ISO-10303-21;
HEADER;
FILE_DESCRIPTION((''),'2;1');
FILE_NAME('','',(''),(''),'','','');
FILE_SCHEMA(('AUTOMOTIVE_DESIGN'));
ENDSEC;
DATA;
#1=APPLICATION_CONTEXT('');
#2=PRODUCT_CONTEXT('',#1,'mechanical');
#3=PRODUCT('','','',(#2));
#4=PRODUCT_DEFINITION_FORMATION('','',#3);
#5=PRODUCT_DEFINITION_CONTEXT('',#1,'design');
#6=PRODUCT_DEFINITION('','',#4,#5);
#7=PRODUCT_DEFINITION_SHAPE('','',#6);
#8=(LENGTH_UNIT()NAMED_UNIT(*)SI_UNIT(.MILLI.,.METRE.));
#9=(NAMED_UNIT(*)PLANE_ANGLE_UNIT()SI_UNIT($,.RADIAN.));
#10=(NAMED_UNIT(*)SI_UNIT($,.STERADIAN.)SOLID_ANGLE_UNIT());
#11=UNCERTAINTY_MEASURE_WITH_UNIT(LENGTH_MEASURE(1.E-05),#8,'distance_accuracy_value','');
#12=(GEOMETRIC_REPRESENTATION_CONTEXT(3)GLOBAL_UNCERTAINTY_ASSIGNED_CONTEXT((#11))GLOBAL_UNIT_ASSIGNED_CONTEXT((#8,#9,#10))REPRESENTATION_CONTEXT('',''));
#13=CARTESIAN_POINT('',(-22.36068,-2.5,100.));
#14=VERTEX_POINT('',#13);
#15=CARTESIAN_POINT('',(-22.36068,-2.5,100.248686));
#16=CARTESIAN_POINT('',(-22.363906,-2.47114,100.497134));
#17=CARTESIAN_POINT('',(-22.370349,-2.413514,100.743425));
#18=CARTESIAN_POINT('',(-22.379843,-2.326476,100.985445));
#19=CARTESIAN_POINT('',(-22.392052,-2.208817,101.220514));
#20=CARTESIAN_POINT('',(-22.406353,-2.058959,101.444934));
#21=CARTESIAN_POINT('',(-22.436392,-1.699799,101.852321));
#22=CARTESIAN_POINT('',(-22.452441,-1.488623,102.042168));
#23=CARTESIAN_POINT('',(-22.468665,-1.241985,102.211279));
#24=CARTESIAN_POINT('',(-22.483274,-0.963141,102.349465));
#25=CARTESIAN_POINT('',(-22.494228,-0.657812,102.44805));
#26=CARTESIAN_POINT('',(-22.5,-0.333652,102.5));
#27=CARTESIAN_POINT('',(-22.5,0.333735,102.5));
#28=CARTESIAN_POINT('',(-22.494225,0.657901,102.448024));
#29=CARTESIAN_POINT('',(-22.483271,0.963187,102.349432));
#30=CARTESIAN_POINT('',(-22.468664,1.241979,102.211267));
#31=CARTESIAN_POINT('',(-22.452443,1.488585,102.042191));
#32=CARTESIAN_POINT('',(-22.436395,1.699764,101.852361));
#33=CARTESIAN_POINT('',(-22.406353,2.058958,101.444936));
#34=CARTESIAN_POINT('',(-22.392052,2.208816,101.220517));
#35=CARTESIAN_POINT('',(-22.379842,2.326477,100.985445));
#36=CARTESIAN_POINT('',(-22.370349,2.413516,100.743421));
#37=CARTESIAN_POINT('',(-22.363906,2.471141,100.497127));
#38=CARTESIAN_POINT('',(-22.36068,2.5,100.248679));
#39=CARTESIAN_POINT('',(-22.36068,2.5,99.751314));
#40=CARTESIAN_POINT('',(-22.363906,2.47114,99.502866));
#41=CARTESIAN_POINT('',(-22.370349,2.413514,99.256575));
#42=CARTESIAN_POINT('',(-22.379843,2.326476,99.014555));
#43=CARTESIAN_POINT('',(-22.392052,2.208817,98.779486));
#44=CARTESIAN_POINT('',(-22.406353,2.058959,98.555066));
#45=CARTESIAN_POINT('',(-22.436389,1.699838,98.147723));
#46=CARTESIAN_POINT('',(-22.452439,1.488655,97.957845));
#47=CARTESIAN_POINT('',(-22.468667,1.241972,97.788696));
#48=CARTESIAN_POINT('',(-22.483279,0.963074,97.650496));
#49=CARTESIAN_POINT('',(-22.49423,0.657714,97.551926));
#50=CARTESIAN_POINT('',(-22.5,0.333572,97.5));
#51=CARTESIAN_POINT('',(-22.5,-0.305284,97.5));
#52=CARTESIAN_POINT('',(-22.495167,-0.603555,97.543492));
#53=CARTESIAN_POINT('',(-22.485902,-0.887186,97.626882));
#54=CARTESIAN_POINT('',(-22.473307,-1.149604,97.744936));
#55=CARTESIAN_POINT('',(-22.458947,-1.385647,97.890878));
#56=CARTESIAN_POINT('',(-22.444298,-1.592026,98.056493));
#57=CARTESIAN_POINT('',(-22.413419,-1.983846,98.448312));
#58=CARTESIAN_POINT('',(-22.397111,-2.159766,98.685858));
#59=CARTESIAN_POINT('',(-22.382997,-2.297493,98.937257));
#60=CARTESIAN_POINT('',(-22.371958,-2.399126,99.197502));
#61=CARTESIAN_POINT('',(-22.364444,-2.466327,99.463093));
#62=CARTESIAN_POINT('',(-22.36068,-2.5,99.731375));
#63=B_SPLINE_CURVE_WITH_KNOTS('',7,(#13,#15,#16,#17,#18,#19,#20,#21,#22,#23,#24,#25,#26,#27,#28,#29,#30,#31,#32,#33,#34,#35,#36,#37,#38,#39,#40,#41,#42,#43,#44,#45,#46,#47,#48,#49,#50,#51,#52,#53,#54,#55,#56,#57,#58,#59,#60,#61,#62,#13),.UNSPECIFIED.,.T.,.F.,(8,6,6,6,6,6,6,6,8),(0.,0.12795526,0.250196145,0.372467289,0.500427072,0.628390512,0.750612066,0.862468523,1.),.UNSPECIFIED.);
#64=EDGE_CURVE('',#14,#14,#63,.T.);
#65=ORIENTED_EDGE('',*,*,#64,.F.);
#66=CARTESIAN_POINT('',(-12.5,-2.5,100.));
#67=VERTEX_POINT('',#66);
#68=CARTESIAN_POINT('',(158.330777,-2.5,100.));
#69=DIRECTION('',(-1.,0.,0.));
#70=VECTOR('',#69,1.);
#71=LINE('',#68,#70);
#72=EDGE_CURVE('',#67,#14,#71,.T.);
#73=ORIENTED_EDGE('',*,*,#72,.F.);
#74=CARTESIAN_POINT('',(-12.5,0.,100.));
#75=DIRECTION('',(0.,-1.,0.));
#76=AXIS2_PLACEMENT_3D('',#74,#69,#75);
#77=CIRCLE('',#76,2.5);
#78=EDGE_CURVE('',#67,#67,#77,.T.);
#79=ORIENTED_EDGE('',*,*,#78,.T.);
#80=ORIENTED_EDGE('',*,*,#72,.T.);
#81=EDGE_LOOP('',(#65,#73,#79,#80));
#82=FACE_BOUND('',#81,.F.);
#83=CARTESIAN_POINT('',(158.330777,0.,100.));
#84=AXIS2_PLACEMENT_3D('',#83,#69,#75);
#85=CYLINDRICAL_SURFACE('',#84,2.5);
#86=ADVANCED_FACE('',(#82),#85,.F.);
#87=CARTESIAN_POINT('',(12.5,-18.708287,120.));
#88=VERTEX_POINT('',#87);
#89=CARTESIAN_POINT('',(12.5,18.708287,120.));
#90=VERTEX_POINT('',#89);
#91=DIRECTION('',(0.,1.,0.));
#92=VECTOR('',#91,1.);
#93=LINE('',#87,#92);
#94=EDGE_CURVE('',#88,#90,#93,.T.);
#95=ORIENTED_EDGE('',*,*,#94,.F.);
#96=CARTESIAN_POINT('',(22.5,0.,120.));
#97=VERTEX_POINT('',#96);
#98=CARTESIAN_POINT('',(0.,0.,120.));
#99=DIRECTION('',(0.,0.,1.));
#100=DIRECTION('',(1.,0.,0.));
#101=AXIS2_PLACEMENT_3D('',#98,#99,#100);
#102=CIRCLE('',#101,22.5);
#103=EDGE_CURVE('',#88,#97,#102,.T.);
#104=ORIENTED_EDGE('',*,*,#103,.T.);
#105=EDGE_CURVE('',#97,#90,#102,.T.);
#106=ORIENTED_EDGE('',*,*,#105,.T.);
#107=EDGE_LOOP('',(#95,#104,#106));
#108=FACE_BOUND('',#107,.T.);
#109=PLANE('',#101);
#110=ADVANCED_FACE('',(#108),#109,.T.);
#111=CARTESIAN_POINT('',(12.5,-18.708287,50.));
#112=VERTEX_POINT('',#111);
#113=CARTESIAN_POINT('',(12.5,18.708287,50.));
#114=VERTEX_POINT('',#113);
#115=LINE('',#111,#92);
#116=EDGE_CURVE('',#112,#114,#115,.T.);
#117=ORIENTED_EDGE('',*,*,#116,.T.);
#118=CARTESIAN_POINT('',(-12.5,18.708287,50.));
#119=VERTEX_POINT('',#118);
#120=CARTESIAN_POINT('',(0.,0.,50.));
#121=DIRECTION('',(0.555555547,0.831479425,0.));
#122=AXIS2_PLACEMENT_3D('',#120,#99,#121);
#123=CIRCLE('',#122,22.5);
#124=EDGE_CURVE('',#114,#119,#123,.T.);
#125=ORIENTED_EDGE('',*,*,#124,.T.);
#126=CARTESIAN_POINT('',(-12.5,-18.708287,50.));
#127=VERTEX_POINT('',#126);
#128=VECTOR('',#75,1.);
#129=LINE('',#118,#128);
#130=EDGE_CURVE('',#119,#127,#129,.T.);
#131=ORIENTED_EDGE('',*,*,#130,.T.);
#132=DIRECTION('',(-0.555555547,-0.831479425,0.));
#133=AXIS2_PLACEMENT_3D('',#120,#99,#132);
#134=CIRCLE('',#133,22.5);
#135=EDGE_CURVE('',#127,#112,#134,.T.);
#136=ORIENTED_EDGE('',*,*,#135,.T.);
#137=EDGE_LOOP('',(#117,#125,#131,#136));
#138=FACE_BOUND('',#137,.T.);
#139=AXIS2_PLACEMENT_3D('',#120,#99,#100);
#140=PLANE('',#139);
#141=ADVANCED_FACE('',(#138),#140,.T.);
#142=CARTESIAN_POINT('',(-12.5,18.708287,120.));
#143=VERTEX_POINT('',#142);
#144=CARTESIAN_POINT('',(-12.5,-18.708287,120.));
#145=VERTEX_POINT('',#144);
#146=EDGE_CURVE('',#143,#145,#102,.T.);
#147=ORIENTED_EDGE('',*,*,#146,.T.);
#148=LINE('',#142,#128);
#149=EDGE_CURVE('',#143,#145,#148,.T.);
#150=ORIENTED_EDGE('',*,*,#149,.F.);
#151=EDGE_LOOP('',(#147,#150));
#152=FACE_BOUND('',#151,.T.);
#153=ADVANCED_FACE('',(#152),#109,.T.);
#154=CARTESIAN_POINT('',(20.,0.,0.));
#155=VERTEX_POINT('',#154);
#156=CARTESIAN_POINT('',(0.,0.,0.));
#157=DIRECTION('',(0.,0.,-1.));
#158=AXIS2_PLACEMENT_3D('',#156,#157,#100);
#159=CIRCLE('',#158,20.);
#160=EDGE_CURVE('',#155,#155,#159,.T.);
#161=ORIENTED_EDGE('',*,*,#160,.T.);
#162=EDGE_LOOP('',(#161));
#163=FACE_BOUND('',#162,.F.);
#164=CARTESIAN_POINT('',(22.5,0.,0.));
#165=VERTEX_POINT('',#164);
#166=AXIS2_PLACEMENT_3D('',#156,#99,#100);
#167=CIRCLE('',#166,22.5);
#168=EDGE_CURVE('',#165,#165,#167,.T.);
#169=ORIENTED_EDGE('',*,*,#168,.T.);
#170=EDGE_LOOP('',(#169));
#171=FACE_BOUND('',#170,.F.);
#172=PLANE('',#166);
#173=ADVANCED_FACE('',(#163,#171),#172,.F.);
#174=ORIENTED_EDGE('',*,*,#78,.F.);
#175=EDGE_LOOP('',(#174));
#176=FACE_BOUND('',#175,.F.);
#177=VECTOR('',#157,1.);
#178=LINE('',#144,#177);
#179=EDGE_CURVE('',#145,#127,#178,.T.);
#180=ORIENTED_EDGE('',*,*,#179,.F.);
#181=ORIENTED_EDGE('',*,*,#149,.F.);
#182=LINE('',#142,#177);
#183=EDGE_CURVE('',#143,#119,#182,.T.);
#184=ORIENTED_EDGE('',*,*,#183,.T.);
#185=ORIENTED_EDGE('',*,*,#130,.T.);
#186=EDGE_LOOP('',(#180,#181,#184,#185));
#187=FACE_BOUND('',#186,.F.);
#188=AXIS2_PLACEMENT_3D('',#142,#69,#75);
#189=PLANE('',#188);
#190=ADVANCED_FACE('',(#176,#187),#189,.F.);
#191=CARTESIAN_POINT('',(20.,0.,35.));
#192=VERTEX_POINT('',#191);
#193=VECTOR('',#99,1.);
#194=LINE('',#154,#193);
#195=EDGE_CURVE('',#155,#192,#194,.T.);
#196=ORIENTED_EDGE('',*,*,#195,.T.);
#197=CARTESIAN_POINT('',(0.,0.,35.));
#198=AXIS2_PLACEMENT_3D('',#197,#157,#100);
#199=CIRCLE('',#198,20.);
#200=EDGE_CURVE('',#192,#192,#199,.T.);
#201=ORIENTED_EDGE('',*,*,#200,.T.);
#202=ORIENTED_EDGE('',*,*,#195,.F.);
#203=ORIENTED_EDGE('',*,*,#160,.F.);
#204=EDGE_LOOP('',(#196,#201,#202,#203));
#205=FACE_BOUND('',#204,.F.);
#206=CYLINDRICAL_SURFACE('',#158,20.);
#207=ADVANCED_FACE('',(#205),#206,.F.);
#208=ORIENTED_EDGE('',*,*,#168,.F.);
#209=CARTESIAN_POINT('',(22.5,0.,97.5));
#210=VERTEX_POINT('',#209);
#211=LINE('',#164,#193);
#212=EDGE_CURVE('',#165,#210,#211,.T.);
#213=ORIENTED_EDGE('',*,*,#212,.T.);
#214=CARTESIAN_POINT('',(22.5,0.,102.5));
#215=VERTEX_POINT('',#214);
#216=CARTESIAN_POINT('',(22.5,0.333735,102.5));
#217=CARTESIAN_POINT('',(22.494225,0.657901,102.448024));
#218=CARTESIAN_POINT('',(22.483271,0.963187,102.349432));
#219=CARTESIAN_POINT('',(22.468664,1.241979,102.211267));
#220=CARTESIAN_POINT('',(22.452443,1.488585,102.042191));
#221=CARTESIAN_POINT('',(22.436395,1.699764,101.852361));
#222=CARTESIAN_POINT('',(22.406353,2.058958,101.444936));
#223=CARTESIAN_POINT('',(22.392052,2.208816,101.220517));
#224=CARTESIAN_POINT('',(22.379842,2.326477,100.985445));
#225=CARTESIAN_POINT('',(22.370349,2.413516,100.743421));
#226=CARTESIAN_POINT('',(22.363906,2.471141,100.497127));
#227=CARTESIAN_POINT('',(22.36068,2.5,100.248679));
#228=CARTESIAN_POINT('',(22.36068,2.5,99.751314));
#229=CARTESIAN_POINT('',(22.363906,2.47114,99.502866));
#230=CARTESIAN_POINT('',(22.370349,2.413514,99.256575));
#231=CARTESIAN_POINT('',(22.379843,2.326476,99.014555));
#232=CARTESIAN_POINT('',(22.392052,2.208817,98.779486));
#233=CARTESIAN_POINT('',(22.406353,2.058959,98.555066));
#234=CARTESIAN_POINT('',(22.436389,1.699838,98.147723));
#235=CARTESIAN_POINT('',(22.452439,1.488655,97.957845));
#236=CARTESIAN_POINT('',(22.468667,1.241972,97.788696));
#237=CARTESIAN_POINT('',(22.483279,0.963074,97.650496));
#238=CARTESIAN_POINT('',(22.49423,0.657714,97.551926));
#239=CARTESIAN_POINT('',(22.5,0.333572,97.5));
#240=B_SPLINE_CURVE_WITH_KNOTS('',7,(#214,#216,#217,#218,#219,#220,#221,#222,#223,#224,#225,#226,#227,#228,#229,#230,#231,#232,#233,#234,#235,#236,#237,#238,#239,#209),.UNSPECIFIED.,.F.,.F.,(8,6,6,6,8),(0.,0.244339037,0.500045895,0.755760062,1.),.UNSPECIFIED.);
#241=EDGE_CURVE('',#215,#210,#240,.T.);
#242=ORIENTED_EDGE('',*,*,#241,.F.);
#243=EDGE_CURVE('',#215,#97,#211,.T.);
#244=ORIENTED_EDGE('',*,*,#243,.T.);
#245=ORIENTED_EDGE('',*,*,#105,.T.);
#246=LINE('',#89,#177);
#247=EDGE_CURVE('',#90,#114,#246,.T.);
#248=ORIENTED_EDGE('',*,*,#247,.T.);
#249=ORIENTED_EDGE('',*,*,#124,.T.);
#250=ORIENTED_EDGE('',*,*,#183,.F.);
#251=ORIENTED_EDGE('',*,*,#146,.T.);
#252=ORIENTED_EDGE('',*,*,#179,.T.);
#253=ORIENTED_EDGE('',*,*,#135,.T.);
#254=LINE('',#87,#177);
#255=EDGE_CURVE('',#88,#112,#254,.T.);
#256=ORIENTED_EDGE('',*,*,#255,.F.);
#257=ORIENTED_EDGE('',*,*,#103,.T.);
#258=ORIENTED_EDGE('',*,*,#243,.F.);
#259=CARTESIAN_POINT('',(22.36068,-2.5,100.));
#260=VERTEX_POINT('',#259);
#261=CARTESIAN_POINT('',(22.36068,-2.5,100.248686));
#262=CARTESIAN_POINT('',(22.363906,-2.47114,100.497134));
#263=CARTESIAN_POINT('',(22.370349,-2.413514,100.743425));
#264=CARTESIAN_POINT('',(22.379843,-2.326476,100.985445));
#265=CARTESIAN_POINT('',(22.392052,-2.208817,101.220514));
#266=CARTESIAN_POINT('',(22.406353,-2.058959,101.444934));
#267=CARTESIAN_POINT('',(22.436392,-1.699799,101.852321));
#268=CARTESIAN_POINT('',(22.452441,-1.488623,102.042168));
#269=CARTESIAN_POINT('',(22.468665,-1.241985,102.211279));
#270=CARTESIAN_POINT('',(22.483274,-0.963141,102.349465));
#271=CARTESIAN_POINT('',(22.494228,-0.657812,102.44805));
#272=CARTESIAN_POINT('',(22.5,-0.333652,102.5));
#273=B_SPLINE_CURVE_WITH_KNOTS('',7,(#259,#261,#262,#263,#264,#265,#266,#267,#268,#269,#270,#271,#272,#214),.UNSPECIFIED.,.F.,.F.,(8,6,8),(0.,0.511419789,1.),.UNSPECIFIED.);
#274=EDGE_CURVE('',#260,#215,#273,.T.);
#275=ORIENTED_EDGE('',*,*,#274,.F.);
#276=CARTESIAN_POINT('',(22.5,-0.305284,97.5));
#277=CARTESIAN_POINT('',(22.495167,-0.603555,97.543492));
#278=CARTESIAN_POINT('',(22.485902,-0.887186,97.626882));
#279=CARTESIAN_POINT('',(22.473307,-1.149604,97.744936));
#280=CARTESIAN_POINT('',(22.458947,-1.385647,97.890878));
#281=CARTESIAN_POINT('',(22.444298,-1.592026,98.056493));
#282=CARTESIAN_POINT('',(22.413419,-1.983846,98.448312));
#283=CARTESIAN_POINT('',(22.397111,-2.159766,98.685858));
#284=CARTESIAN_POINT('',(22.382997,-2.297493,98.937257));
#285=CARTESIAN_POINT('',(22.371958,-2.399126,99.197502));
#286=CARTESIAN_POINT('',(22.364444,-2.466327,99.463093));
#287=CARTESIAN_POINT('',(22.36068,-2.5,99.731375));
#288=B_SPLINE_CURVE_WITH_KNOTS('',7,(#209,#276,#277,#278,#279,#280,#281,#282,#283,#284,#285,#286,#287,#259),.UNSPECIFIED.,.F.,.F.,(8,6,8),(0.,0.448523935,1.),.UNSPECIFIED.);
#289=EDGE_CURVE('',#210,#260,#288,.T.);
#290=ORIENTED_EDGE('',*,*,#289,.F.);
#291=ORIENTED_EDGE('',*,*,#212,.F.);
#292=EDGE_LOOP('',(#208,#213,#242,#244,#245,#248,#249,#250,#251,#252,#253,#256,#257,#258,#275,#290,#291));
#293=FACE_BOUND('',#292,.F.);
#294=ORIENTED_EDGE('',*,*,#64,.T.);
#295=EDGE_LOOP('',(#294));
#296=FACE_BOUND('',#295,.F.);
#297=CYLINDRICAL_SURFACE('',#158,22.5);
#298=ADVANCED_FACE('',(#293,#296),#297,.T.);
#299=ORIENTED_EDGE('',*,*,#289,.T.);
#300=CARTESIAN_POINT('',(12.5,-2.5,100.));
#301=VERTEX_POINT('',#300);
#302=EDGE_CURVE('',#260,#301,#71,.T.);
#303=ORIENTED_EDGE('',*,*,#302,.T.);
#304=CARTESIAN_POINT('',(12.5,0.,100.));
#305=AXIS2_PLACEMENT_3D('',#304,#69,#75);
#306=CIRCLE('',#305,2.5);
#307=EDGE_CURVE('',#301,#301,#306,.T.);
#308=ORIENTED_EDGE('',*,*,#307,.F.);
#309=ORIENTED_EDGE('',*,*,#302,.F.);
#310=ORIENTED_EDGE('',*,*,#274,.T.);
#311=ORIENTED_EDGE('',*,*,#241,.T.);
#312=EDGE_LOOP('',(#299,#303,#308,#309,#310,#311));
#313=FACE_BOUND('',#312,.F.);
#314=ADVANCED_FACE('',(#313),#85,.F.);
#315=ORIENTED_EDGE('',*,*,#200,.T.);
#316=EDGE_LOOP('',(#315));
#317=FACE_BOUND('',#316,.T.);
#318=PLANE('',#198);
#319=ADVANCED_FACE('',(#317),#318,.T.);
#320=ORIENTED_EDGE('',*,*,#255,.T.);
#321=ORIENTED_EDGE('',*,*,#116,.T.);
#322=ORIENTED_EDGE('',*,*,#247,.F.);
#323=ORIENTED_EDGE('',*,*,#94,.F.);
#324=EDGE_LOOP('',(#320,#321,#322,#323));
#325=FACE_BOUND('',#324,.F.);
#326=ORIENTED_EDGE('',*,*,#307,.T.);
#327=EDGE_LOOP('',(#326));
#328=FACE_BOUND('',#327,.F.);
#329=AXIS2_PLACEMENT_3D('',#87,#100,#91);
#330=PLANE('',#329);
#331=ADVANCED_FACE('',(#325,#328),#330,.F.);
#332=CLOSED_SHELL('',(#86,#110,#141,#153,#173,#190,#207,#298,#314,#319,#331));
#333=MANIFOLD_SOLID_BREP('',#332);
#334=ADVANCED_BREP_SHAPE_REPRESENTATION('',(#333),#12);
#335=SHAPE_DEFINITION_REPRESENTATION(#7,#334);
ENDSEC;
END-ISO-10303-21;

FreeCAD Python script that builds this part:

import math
import FreeCAD as App
import Part
import Sketcher
from FreeCAD import Vector

doc = App.newDocument("Part")
params = doc.addObject("Spreadsheet::Sheet", "Params")
for row, (alias, value) in enumerate([
    ("sketch1_diameter", "45 mm"),
    ("pad1_length", "120 mm"),
    ("sketch2_radius", "22.5 mm"),
    ("pocket1_length", "70 mm"),
    ("sketch3_diameter", "40 mm"),
    ("pocket2_length", "35 mm"),
    ("sketch4_diameter", "5 mm"),
    ("hole_diameter", "5 mm"),
], start=1):
    params.set(f"A{row}", alias)
    params.set(f"B{row}", "=" + value)
    params.setAlias(f"B{row}", alias)

body = doc.addObject("PartDesign::Body", "Body")

# Sketch on XY plane
sketch1 = doc.addObject("Sketcher::SketchObject", "Sketch")
body.addObject(sketch1)
sketch1.AttachmentSupport = (doc.XY_Plane, [""])
sketch1.MapMode = "FlatFace"
sketch1.addGeometry(Part.Circle(Vector(0, 0, 0), Vector(0, 0, 1), 22), False)
sketch1.addConstraint([
    Sketcher.Constraint("Coincident", 0, 3, -1, 1),
    Sketcher.Constraint("Diameter", 0, 45.0),
])
sketch1.setExpression("Constraints[1]", "Params.sketch1_diameter")
pad1 = doc.addObject("PartDesign::Pad", "Pad")
body.addObject(pad1)
pad1.Profile = sketch1
pad1.setExpression("Length", "Params.pad1_length")

# Sketch on XY plane
sketch2 = doc.addObject("Sketcher::SketchObject", "Sketch001")
body.addObject(sketch2)
sketch2.AttachmentSupport = (doc.XY_Plane, [""])
sketch2.MapMode = "FlatFace"
sketch2.AttachmentOffset = App.Placement(Vector(0, 0, 120), App.Rotation())
sketch2.addGeometry([
    Part.ArcOfCircle(Part.Circle(Vector(0, 0, 0), Vector(0, 0, 1), 23), math.radians(56), math.radians(124)),
    Part.LineSegment(Vector(-12, 19, 0), Vector(-12, -19, 0)),
    Part.ArcOfCircle(Part.Circle(Vector(0, 0, 0), Vector(0, 0, 1), 23), math.radians(-124), math.radians(-56)),
    Part.LineSegment(Vector(12, -19, 0), Vector(12, 19, 0)),
], False)
sketch2.addConstraint([
    Sketcher.Constraint("Coincident", 0, 2, 1, 1),
    Sketcher.Constraint("Coincident", 1, 2, 2, 1),
    Sketcher.Constraint("Coincident", 2, 2, 3, 1),
    Sketcher.Constraint("Coincident", 3, 2, 0, 1),
    Sketcher.Constraint("Vertical", 1),
    Sketcher.Constraint("Vertical", 3),
    Sketcher.Constraint("Coincident", 0, 3, -1, 1),
    Sketcher.Constraint("Coincident", 2, 3, -1, 1),
    Sketcher.Constraint("Equal", 0, 2),
    Sketcher.Constraint("Horizontal", 1, 2, 2, 2),
    Sketcher.Constraint("Radius", 0, 22.5),
    Sketcher.Constraint("DistanceX", 1, 2, 2, 2, 25.0),
])
sketch2.setExpression("Constraints[10]", "Params.sketch2_radius")
pocket1 = doc.addObject("PartDesign::Pocket", "Pocket")
body.addObject(pocket1)
pocket1.Profile = sketch2
pocket1.setExpression("Length", "Params.pocket1_length")

# Sketch on XY plane
sketch3 = doc.addObject("Sketcher::SketchObject", "Sketch002")
body.addObject(sketch3)
sketch3.AttachmentSupport = (doc.XY_Plane, [""])
sketch3.MapMode = "FlatFace"
sketch3.addGeometry(Part.Circle(Vector(0, 0, 0), Vector(0, 0, 1), 20), False)
sketch3.addConstraint([
    Sketcher.Constraint("Coincident", 0, 3, -1, 1),
    Sketcher.Constraint("Diameter", 0, 40.0),
])
sketch3.setExpression("Constraints[1]", "Params.sketch3_diameter")
pocket2 = doc.addObject("PartDesign::Pocket", "Pocket001")
body.addObject(pocket2)
pocket2.Profile = sketch3
pocket2.setExpression("Length", "Params.pocket2_length")
pocket2.Reversed = True

# Sketch on YZ plane
sketch4 = doc.addObject("Sketcher::SketchObject", "Sketch003")
body.addObject(sketch4)
sketch4.AttachmentSupport = (doc.YZ_Plane, [""])
sketch4.MapMode = "FlatFace"
sketch4.AttachmentOffset = App.Placement(Vector(0, 0, 22.5), App.Rotation())
sketch4.addGeometry(Part.Circle(Vector(0, 100, 0), Vector(0, 0, 1), 2.5), False)
sketch4.addConstraint([
    Sketcher.Constraint("PointOnObject", 0, 3, -2),
    Sketcher.Constraint("Diameter", 0, 5.0),
    Sketcher.Constraint("DistanceY", -1, 1, 0, 3, 100.0),
])
sketch4.setExpression("Constraints[1]", "Params.sketch4_diameter")
doc.recompute()
hole = doc.addObject("PartDesign::Hole", "Hole")
body.addObject(hole)
hole.Profile = sketch4
hole.ThreadType = "None"
hole.setExpression("Diameter", "Params.hole_diameter")
hole.DepthType = "ThroughAll"

doc.recompute()
